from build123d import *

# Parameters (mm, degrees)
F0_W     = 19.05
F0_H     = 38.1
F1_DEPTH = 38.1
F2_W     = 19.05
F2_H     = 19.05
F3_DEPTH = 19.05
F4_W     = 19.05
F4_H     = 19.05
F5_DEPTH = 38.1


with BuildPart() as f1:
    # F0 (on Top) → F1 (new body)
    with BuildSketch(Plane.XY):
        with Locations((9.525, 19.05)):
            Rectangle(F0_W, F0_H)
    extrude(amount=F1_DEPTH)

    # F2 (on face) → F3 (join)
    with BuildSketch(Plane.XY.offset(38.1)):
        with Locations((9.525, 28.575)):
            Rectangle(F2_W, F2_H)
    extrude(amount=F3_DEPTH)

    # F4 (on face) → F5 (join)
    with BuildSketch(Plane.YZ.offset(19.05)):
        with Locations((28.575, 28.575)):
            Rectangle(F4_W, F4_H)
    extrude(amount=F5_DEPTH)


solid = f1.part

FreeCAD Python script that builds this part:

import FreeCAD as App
import Part
import Sketcher
from FreeCAD import Vector
Q = App.Units.Quantity

doc = App.newDocument("Part")
body = doc.addObject("PartDesign::Body", "Body")

sketch1 = body.newObject("Sketcher::SketchObject", "Sketch")
sketch1.AttachmentSupport = (doc.getObject("XY_Plane"), [""])
sketch1.MapMode = "FlatFace"
sketch1.addGeometry(Part.LineSegment(Vector(0, 38, 0), Vector(0, 0, 0)), False)
sketch1.addGeometry(Part.LineSegment(Vector(0, 0, 0), Vector(19, 0, 0)), False)
sketch1.addGeometry(Part.LineSegment(Vector(19, 0, 0), Vector(19, 38, 0)), False)
sketch1.addGeometry(Part.LineSegment(Vector(19, 38, 0), Vector(0, 38, 0)), False)
sketch1.addConstraint(Sketcher.Constraint("Coincident", 0, 2, 1, 1))
sketch1.addConstraint(Sketcher.Constraint("Coincident", 1, 2, 2, 1))
sketch1.addConstraint(Sketcher.Constraint("Coincident", 2, 2, 3, 1))
sketch1.addConstraint(Sketcher.Constraint("Coincident", 3, 2, 0, 1))
sketch1.addConstraint(Sketcher.Constraint("Vertical", 0))
sketch1.addConstraint(Sketcher.Constraint("Horizontal", 1))
sketch1.addConstraint(Sketcher.Constraint("Vertical", 2))
sketch1.addConstraint(Sketcher.Constraint("Horizontal", 3))
sketch1.addConstraint(Sketcher.Constraint("Coincident", 0, 2, -1, 1))
sketch1.addConstraint(Sketcher.Constraint("DistanceY", 0, 2, 0, 1, Q("1.5 in")))
sketch1.addConstraint(Sketcher.Constraint("DistanceX", 1, 1, 1, 2, Q("0.75 in")))
pad1 = body.newObject("PartDesign::Pad", "Pad")
pad1.Profile = sketch1
pad1.Length = Q("1.5 in")

sketch2 = body.newObject("Sketcher::SketchObject", "Sketch001")
sketch2.AttachmentSupport = (doc.getObject("XY_Plane"), [""])
sketch2.MapMode = "FlatFace"
sketch2.AttachmentOffset = App.Placement(Vector(0, 0, 1.5 * 25.4), App.Rotation())
sketch2.addGeometry(Part.LineSegment(Vector(0, 38, 0), Vector(0, 19, 0)), False)
sketch2.addGeometry(Part.LineSegment(Vector(0, 19, 0), Vector(19, 19, 0)), False)
sketch2.addGeometry(Part.LineSegment(Vector(19, 19, 0), Vector(19, 38, 0)), False)
sketch2.addGeometry(Part.LineSegment(Vector(19, 38, 0), Vector(0, 38, 0)), False)
sketch2.addConstraint(Sketcher.Constraint("Coincident", 0, 2, 1, 1))
sketch2.addConstraint(Sketcher.Constraint("Coincident", 1, 2, 2, 1))
sketch2.addConstraint(Sketcher.Constraint("Coincident", 2, 2, 3, 1))
sketch2.addConstraint(Sketcher.Constraint("Coincident", 3, 2, 0, 1))
sketch2.addConstraint(Sketcher.Constraint("Vertical", 0))
sketch2.addConstraint(Sketcher.Constraint("Horizontal", 1))
sketch2.addConstraint(Sketcher.Constraint("Vertical", 2))
sketch2.addConstraint(Sketcher.Constraint("Horizontal", 3))
sketch2.addConstraint(Sketcher.Constraint("PointOnObject", 0, 2, -2))
sketch2.addConstraint(Sketcher.Constraint("Equal", 3, 0))
sketch2.addConstraint(Sketcher.Constraint("DistanceX", 1, 1, 1, 2, Q("0.75 in")))
sketch2.addConstraint(Sketcher.Constraint("DistanceY", -1, 1, 2, 2, Q("1.5 in")))
pad2 = body.newObject("PartDesign::Pad", "Pad001")
pad2.Profile = sketch2
pad2.Length = Q("0.75 in")

sketch3 = body.newObject("Sketcher::SketchObject", "Sketch002")
sketch3.AttachmentSupport = (doc.getObject("YZ_Plane"), [""])
sketch3.MapMode = "FlatFace"
sketch3.AttachmentOffset = App.Placement(Vector(0, 0, 0.75 * 25.4), App.Rotation())
sketch3.addGeometry(Part.LineSegment(Vector(19, 38, 0), Vector(19, 19, 0)), False)
sketch3.addGeometry(Part.LineSegment(Vector(19, 19, 0), Vector(38, 19, 0)), False)
sketch3.addGeometry(Part.LineSegment(Vector(38, 19, 0), Vector(38, 38, 0)), False)
sketch3.addGeometry(Part.LineSegment(Vector(38, 38, 0), Vector(19, 38, 0)), False)
sketch3.addConstraint(Sketcher.Constraint("Coincident", 0, 2, 1, 1))
sketch3.addConstraint(Sketcher.Constraint("Coincident", 1, 2, 2, 1))
sketch3.addConstraint(Sketcher.Constraint("Coincident", 2, 2, 3, 1))
sketch3.addConstraint(Sketcher.Constraint("Coincident", 3, 2, 0, 1))
sketch3.addConstraint(Sketcher.Constraint("Vertical", 0))
sketch3.addConstraint(Sketcher.Constraint("Horizontal", 1))
sketch3.addConstraint(Sketcher.Constraint("Vertical", 2))
sketch3.addConstraint(Sketcher.Constraint("Horizontal", 3))
sketch3.addConstraint(Sketcher.Constraint("Equal", 3, 0))
sketch3.addConstraint(Sketcher.Constraint("DistanceX", 1, 1, 1, 2, Q("0.75 in")))
sketch3.addConstraint(Sketcher.Constraint("DistanceX", -1, 1, 1, 2, Q("1.5 in")))
sketch3.addConstraint(Sketcher.Constraint("DistanceY", -1, 1, 2, 2, Q("1.5 in")))
pad3 = body.newObject("PartDesign::Pad", "Pad002")
pad3.Profile = sketch3
pad3.Length = Q("1.5 in")

doc.recompute()
